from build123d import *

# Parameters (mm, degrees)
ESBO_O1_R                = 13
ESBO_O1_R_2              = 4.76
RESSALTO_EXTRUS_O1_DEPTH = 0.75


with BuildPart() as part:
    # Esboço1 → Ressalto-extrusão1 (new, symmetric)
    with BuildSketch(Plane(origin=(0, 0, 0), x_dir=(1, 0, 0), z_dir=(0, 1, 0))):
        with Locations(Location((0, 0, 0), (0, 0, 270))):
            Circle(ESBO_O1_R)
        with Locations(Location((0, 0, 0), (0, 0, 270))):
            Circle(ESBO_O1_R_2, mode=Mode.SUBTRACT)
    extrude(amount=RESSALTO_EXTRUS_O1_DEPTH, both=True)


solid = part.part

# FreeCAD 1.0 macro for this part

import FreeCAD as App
import Part
import Sketcher
from FreeCAD import Vector
Q = App.Units.Quantity

doc = App.newDocument("Part")
body = doc.addObject("PartDesign::Body", "Body")

# Sketch on XZ plane
sketch1 = body.newObject("Sketcher::SketchObject", "Sketch")
sketch1.AttachmentSupport = (doc.getObject("XZ_Plane"), [""])
sketch1.MapMode = "FlatFace"
sketch1.addGeometry(Part.Circle(Vector(0, 0, 0), Vector(0, 0, 1), 13), False)
sketch1.addGeometry(Part.Circle(Vector(0, 0, 0), Vector(0, 0, 1), 4.8), False)
sketch1.addConstraint(Sketcher.Constraint("Coincident", 0, 3, -1, 1))
sketch1.addConstraint(Sketcher.Constraint("Coincident", 1, 3, -1, 1))
sketch1.addConstraint(Sketcher.Constraint("Diameter", 0, Q("26 mm")))
sketch1.addConstraint(Sketcher.Constraint("Diameter", 1, Q("9.52 mm")))
pad1 = body.newObject("PartDesign::Pad", "Pad")
pad1.Profile = sketch1
pad1.Length = 1.5
pad1.Midplane = True

doc.recompute()
